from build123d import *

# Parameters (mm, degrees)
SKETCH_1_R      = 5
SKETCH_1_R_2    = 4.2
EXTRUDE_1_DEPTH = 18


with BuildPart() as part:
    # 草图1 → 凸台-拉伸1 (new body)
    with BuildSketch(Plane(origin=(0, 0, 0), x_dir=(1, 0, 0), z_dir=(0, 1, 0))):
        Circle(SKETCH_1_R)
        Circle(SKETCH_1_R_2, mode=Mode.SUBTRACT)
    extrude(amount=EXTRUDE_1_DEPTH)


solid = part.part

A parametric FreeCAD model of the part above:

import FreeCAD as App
import Part
import Sketcher
from FreeCAD import Vector
Q = App.Units.Quantity

doc = App.newDocument("Part")
body = doc.addObject("PartDesign::Body", "Body")

# Sketch on XZ plane
sketch1 = body.newObject("Sketcher::SketchObject", "Sketch")
sketch1.AttachmentSupport = (doc.getObject("XZ_Plane"), [""])
sketch1.MapMode = "FlatFace"
sketch1.addGeometry([
    Part.Circle(Vector(0, 0, 0), Vector(0, 0, 1), 5),
    Part.Circle(Vector(0, 0, 0), Vector(0, 0, 1), 4.2),
], False)
sketch1.addConstraint([
    Sketcher.Constraint("Coincident", 0, 3, -1, 1),
    Sketcher.Constraint("Coincident", 1, 3, -1, 1),
    Sketcher.Constraint("Diameter", 0, Q("10 mm")),
    Sketcher.Constraint("Diameter", 1, Q("8.4 mm")),
])
pad1 = body.newObject("PartDesign::Pad", "Pad")
pad1.Profile = sketch1
pad1.Length = 18
pad1.Reversed = True

doc.recompute()
